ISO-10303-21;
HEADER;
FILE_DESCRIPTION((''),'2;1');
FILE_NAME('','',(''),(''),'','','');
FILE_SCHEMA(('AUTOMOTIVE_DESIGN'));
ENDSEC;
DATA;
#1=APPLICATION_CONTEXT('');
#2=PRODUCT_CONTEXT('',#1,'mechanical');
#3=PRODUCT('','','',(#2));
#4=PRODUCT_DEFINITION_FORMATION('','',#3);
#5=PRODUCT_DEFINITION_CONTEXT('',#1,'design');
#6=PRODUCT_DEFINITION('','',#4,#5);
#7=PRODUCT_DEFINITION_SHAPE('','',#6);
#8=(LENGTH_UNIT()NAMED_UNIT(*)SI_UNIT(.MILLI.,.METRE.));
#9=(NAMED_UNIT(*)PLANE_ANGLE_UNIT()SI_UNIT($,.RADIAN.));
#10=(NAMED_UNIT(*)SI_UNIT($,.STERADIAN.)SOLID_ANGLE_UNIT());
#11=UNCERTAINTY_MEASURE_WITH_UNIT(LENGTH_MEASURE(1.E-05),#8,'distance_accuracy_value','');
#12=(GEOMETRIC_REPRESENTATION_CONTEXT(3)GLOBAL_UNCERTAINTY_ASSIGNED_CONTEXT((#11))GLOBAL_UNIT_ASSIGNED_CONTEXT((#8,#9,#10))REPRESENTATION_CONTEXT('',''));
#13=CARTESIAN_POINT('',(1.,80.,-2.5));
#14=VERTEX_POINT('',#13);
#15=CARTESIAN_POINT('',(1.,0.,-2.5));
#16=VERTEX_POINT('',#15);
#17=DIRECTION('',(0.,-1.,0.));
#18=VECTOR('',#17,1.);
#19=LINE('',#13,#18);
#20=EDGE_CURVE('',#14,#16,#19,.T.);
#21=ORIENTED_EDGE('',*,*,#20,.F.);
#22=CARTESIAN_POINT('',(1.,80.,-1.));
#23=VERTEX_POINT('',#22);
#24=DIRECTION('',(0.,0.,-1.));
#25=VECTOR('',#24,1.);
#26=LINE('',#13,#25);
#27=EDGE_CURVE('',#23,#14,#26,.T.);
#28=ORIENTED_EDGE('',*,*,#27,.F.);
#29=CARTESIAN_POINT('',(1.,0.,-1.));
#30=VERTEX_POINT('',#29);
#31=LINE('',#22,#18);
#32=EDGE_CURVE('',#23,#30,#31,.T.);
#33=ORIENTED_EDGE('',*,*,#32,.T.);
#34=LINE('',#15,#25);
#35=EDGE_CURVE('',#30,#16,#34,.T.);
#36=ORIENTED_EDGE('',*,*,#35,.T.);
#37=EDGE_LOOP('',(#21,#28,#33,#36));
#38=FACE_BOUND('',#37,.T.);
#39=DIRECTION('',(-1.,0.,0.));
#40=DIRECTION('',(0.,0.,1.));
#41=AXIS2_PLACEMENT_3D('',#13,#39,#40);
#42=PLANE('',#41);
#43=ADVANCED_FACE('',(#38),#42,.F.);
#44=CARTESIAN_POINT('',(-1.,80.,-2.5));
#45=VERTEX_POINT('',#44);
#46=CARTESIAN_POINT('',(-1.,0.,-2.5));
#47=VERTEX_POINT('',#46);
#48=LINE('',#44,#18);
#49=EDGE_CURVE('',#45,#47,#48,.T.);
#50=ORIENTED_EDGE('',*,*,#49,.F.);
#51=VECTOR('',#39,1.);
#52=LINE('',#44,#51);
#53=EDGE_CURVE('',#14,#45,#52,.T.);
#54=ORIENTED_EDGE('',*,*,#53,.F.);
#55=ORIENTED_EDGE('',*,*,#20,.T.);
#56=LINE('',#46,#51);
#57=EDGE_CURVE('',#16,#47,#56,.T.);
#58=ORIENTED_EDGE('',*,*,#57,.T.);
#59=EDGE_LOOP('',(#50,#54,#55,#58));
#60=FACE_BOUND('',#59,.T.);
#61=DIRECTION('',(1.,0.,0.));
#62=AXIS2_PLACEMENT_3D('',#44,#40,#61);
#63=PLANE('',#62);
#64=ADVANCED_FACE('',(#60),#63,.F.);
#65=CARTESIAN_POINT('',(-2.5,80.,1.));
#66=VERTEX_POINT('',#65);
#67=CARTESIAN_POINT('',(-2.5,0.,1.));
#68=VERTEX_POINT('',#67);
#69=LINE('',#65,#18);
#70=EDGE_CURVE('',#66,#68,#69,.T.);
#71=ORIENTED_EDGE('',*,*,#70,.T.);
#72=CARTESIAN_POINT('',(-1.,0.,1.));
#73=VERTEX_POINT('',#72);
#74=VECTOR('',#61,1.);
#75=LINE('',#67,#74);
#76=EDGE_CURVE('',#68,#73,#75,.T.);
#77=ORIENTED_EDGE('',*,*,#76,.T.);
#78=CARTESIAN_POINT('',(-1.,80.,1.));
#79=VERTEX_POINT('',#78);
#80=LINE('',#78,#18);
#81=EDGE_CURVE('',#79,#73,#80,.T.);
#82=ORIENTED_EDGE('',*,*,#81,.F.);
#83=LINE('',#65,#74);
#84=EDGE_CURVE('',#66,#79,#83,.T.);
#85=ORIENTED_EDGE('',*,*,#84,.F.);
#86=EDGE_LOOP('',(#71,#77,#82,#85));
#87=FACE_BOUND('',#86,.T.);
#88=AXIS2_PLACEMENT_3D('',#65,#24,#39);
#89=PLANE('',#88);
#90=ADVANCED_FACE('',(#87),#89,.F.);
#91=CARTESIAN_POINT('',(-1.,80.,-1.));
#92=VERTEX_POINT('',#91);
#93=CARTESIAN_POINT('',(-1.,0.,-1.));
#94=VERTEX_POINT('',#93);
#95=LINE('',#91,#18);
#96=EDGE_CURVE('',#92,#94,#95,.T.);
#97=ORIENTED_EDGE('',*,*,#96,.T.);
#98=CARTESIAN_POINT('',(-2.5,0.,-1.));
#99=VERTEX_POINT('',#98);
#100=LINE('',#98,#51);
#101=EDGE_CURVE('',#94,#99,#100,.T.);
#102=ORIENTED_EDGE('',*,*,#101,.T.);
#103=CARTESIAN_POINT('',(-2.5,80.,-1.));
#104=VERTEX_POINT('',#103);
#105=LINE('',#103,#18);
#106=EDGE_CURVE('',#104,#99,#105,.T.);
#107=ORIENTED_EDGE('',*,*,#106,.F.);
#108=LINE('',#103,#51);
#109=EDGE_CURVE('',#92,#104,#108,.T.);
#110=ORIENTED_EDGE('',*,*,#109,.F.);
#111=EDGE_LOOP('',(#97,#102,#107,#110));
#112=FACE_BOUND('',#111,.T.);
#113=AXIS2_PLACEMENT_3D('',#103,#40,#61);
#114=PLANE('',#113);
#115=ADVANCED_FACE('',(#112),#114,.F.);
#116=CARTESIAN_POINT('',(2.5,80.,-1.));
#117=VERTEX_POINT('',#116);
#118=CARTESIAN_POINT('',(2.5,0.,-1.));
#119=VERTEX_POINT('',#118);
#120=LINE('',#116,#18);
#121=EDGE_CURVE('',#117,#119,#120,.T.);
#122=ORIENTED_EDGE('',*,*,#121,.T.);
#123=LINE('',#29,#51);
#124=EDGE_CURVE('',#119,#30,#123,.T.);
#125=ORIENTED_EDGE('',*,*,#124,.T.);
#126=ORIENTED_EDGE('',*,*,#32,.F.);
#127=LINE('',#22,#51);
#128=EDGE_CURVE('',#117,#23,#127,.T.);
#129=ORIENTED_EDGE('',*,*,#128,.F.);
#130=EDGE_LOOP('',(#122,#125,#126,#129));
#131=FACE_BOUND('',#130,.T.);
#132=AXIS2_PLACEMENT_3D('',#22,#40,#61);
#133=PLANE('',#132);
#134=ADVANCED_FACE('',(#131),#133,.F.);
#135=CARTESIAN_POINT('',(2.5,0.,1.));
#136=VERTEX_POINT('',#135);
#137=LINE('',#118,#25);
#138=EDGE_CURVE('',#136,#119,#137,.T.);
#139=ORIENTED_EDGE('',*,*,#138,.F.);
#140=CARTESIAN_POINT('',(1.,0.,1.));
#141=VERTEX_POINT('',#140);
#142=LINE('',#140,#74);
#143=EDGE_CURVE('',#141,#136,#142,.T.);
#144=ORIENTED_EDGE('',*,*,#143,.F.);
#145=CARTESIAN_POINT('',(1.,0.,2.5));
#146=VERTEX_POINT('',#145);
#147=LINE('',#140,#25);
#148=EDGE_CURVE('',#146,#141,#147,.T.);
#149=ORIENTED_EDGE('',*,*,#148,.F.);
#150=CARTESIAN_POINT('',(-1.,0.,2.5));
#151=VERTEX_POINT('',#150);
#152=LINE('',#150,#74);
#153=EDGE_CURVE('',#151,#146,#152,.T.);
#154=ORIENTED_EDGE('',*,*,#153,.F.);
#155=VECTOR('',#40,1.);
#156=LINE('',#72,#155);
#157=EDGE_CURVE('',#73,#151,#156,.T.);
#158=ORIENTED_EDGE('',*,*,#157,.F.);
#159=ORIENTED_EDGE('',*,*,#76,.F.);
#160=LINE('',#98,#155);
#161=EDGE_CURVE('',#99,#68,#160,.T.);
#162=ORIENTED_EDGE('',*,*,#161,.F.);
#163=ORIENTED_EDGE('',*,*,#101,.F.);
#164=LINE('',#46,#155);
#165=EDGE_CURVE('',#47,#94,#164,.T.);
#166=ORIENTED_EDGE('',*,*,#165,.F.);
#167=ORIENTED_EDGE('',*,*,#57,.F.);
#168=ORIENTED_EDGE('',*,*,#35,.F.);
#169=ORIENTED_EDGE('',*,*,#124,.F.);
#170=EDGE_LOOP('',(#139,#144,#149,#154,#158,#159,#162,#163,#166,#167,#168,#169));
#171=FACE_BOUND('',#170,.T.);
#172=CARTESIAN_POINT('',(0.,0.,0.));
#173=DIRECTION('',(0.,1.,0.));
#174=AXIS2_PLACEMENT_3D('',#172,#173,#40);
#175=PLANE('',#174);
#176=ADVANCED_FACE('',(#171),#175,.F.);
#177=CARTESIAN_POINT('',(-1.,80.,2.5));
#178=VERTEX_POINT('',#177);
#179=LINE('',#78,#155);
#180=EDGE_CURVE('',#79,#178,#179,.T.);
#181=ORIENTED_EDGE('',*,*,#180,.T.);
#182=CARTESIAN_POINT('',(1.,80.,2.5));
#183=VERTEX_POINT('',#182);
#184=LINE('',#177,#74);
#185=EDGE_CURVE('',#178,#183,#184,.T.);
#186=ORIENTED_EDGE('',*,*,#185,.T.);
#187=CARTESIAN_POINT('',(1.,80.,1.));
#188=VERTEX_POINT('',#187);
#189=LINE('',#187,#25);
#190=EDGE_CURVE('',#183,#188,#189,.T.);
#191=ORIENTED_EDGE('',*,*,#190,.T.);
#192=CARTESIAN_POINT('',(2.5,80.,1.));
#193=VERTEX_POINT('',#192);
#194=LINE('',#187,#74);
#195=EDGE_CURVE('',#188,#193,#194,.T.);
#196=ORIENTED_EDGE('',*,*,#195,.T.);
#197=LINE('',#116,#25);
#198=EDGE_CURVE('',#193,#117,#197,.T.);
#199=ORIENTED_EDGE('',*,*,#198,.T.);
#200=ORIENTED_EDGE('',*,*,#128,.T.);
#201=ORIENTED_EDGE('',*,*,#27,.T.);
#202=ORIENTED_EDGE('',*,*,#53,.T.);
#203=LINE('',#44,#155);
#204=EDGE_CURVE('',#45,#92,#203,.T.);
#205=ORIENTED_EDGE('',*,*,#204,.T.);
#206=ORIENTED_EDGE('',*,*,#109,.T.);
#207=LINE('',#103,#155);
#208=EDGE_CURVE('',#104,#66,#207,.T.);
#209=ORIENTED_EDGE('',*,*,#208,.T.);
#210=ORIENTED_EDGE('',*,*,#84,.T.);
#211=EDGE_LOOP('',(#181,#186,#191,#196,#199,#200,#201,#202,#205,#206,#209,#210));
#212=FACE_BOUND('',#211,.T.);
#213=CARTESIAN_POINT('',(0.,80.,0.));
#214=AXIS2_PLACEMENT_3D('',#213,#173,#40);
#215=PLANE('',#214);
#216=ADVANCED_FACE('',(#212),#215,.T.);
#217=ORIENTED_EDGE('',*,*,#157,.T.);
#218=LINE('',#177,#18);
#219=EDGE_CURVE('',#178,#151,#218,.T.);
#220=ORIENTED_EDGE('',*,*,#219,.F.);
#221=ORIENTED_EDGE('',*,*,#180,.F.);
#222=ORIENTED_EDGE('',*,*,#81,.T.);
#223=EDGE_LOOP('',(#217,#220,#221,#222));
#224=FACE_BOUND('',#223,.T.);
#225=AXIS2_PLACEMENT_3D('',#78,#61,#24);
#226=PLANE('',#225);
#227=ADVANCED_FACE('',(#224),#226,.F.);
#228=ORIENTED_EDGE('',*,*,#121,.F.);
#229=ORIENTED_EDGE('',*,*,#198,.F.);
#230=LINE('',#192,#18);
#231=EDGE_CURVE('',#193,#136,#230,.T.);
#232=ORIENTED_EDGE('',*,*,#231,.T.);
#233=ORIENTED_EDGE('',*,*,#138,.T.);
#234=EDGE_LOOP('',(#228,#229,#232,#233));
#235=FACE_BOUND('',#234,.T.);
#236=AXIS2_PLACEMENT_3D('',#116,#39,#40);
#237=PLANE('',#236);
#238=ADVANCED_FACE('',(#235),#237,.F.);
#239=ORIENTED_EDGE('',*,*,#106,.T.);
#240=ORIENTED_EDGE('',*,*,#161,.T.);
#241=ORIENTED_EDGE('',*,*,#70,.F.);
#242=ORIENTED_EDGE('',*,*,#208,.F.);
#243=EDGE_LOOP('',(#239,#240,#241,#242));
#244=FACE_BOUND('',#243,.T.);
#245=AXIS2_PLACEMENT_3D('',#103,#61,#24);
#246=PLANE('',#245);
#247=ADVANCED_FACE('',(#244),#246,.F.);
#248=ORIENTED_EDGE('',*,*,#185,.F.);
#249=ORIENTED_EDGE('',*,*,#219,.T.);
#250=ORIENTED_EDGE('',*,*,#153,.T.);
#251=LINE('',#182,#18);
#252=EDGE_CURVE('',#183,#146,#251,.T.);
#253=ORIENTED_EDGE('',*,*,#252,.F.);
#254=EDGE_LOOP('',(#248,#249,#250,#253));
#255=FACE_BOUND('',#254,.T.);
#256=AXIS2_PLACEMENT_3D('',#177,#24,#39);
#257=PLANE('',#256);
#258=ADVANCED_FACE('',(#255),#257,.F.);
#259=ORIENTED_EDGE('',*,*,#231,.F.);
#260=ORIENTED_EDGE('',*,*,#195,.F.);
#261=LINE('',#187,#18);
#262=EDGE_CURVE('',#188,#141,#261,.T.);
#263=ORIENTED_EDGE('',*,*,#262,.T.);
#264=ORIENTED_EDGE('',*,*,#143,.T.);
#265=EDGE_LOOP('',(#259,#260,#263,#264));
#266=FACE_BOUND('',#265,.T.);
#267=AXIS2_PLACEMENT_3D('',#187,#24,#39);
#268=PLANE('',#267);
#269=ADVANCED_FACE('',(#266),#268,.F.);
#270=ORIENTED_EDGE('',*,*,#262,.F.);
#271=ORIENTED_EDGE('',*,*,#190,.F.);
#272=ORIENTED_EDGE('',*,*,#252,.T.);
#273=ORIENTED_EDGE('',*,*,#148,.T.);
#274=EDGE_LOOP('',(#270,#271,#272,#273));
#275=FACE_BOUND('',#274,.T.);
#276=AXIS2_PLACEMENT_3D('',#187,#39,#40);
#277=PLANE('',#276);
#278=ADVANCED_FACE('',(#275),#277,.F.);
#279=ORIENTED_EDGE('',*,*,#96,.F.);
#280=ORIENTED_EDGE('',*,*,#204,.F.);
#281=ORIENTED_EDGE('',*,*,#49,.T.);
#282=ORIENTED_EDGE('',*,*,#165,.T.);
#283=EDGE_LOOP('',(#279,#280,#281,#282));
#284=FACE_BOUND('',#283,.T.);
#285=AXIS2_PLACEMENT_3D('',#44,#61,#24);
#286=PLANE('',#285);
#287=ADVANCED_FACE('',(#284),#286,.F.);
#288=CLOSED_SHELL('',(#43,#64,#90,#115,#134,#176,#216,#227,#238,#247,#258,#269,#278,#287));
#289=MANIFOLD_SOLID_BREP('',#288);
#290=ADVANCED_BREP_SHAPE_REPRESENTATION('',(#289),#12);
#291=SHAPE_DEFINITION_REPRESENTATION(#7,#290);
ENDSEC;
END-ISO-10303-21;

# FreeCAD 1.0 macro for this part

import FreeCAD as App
import Part
import Sketcher

V = App.Vector

doc = App.newDocument("Part")
body = doc.addObject("PartDesign::Body", "Body")

# Sketch on XZ plane
sketch1 = body.newObject("Sketcher::SketchObject", "Sketch")
sketch1.AttachmentSupport = (doc.getObject("XZ_Plane"), [""])
sketch1.MapMode = "FlatFace"
sketch1.addGeometry([
    Part.LineSegment(V(2.5, -1, 0), V(1, -1, 0)),  # 0
    Part.LineSegment(V(1, -1, 0), V(1, -2.5, 0)),  # 1
    Part.LineSegment(V(1, -2.5, 0), V(-1, -2.5, 0)),  # 2
    Part.LineSegment(V(-1, -2.5, 0), V(-1, -1, 0)),  # 3
    Part.LineSegment(V(-1, -1, 0), V(-2.5, -1, 0)),  # 4
    Part.LineSegment(V(-2.5, -1, 0), V(-2.5, 1, 0)),  # 5
    Part.LineSegment(V(-2.5, 1, 0), V(-1, 1, 0)),  # 6
    Part.LineSegment(V(-1, 1, 0), V(-1, 2.5, 0)),  # 7
    Part.LineSegment(V(-1, 2.5, 0), V(1, 2.5, 0)),  # 8
    Part.LineSegment(V(1, 2.5, 0), V(1, 1, 0)),  # 9
    Part.LineSegment(V(1, 1, 0), V(2.5, 1, 0)),  # 10
    Part.LineSegment(V(2.5, 1, 0), V(2.5, -1, 0)),  # 11
], False)
sketch1.addConstraint([
    Sketcher.Constraint("Coincident", 0, 2, 1, 1),
    Sketcher.Constraint("Coincident", 1, 2, 2, 1),
    Sketcher.Constraint("Coincident", 2, 2, 3, 1),
    Sketcher.Constraint("Coincident", 3, 2, 4, 1),
    Sketcher.Constraint("Coincident", 4, 2, 5, 1),
    Sketcher.Constraint("Coincident", 5, 2, 6, 1),
    Sketcher.Constraint("Coincident", 6, 2, 7, 1),
    Sketcher.Constraint("Coincident", 7, 2, 8, 1),
    Sketcher.Constraint("Coincident", 8, 2, 9, 1),
    Sketcher.Constraint("Coincident", 9, 2, 10, 1),
    Sketcher.Constraint("Coincident", 10, 2, 11, 1),
    Sketcher.Constraint("Coincident", 11, 2, 0, 1),
    Sketcher.Constraint("Horizontal", 0),
    Sketcher.Constraint("Vertical", 1),
    Sketcher.Constraint("Horizontal", 2),
    Sketcher.Constraint("Vertical", 3),
    Sketcher.Constraint("Horizontal", 4),
    Sketcher.Constraint("Vertical", 5),
    Sketcher.Constraint("Horizontal", 6),
    Sketcher.Constraint("Vertical", 7),
    Sketcher.Constraint("Horizontal", 8),
    Sketcher.Constraint("Vertical", 9),
    Sketcher.Constraint("Horizontal", 10),
    Sketcher.Constraint("Vertical", 11),
    Sketcher.Constraint("Symmetric", 0, 2, 6, 2, -1, 1),
    Sketcher.Constraint("Symmetric", 2, 2, 8, 2, -1, 1),
    Sketcher.Constraint("Symmetric", 4, 2, 10, 2, -1, 1),
    Sketcher.Constraint("Symmetric", 0, 2, 3, 2, -2),
    Sketcher.Constraint("Equal", 10, 1),
    Sketcher.Constraint("Equal", 8, 5),
    Sketcher.Constraint("DistanceX", 2, 2, 2, 1, 2.0),
    Sketcher.Constraint("DistanceX", 0, 2, 0, 1, 1.5),
])
pad1 = body.newObject("PartDesign::Pad", "Pad")
pad1.Profile = sketch1
pad1.Length = 80
pad1.Reversed = True

doc.recompute()
